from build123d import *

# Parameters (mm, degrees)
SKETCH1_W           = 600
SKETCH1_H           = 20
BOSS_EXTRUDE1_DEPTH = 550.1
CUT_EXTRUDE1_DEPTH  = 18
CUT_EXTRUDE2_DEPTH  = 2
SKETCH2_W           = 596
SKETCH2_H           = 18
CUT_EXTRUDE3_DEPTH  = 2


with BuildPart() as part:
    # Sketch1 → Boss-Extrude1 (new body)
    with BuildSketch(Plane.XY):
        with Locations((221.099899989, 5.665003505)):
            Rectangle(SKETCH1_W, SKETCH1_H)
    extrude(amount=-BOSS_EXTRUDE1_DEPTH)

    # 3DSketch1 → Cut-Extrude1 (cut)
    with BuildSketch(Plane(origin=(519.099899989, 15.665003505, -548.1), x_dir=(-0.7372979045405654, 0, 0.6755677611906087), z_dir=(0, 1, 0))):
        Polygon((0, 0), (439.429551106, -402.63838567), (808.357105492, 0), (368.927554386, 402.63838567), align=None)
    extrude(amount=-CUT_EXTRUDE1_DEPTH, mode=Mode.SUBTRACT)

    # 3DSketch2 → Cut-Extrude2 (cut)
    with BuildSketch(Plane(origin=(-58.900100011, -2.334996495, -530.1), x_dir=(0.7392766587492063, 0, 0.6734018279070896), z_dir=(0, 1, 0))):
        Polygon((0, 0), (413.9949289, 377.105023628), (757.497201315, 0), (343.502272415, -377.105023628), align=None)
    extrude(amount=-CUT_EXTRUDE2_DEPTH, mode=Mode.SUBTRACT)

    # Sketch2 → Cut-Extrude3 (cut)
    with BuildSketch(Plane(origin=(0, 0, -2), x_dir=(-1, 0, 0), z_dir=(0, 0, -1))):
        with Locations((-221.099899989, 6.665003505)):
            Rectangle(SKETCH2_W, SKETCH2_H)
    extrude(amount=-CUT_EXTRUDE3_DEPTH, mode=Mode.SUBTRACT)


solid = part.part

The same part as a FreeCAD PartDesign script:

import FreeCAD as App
import Part
import Sketcher
from FreeCAD import Vector


def add_polygon(sketch, points):
    """Adds a closed chain of lines whose ends are joined by coincident constraints."""
    first, n = sketch.GeometryCount, len(points)
    for a, b in zip(points, points[1:] + points[:1]):
        sketch.addGeometry(Part.LineSegment(App.Vector(*a, 0), App.Vector(*b, 0)), False)
    for i in range(n):
        sketch.addConstraint(Sketcher.Constraint("Coincident", first + i, 2, first + (i + 1) % n, 1))

doc = App.newDocument("Part")
body = doc.addObject("PartDesign::Body", "Body")

# Sketch on XY plane
sketch1 = doc.addObject("Sketcher::SketchObject", "Sketch")
body.addObject(sketch1)
sketch1.AttachmentSupport = (doc.XY_Plane, [""])
sketch1.MapMode = "FlatFace"
add_polygon(sketch1, [(-79, 16), (-79, -4), (521, -4), (521, 16)])  # lines 0-3
sketch1.addConstraint([
    Sketcher.Constraint("Vertical", 0),
    Sketcher.Constraint("Horizontal", 1),
    Sketcher.Constraint("Vertical", 2),
    Sketcher.Constraint("Horizontal", 3),
    Sketcher.Constraint("DistanceX", 1, 1, 1, 2, 600.0),
    Sketcher.Constraint("DistanceY", 0, 2, 0, 1, 20.0),
    Sketcher.Constraint("DistanceX", 0, 2, -1, 1, 78.9001),
    Sketcher.Constraint("DistanceY", 0, 2, -1, 1, 4.334996),
])
pad1 = doc.addObject("PartDesign::Pad", "Pad")
body.addObject(pad1)
pad1.Profile = sketch1
pad1.Length = 550.1
pad1.Reversed = True

# Sketch on XZ plane
sketch2 = doc.addObject("Sketcher::SketchObject", "Sketch001")
body.addObject(sketch2)
sketch2.AttachmentSupport = (doc.XZ_Plane, [""])
sketch2.MapMode = "FlatFace"
sketch2.AttachmentOffset = App.Placement(Vector(0, 0, -15.665004), App.Rotation())
add_polygon(sketch2, [(519, -548), (-77, -548), (-77, -2), (519, -2)])  # lines 0-3
sketch2.addConstraint([
    Sketcher.Constraint("Horizontal", 0),
    Sketcher.Constraint("Vertical", 1),
    Sketcher.Constraint("Horizontal", 2),
    Sketcher.Constraint("Vertical", 3),
    Sketcher.Constraint("DistanceX", 0, 2, 0, 1, 596.0),
    Sketcher.Constraint("DistanceY", 1, 1, 1, 2, 546.1),
    Sketcher.Constraint("DistanceY", 1, 2, -1, 1, 2.0),
    Sketcher.Constraint("DistanceX", 0, 2, -1, 1, 76.9001),
])
pocket1 = doc.addObject("PartDesign::Pocket", "Pocket")
body.addObject(pocket1)
pocket1.Profile = sketch2
pocket1.Length = 18
pocket1.Reversed = True

# Sketch on XZ plane
sketch3 = doc.addObject("Sketcher::SketchObject", "Sketch002")
body.addObject(sketch3)
sketch3.AttachmentSupport = (doc.XZ_Plane, [""])
sketch3.MapMode = "FlatFace"
sketch3.AttachmentOffset = App.Placement(Vector(0, 0, 2.334996), App.Rotation())
add_polygon(sketch3, [(501, -530), (-59, -530), (-59, -20), (501, -20)])  # lines 0-3
sketch3.addConstraint([
    Sketcher.Constraint("Horizontal", 0),
    Sketcher.Constraint("Vertical", 1),
    Sketcher.Constraint("Horizontal", 2),
    Sketcher.Constraint("Vertical", 3),
    Sketcher.Constraint("DistanceX", 0, 2, 0, 1, 560.0),
    Sketcher.Constraint("DistanceY", 1, 1, 1, 2, 510.1),
    Sketcher.Constraint("DistanceY", 1, 2, -1, 1, 20.0),
    Sketcher.Constraint("DistanceX", 0, 2, -1, 1, 58.9001),
])
pocket2 = doc.addObject("PartDesign::Pocket", "Pocket001")
body.addObject(pocket2)
pocket2.Profile = sketch3
pocket2.Length = 2
pocket2.Reversed = True

# Sketch on XY plane
sketch4 = doc.addObject("Sketcher::SketchObject", "Sketch003")
body.addObject(sketch4)
sketch4.AttachmentSupport = (doc.XY_Plane, [""])
sketch4.MapMode = "FlatFace"
sketch4.AttachmentOffset = App.Placement(Vector(0, 0, -2), App.Rotation())
add_polygon(sketch4, [(519, 16), (519, -2), (-77, -2), (-77, 16)])  # lines 0-3
sketch4.addConstraint([
    Sketcher.Constraint("Vertical", 0),
    Sketcher.Constraint("Horizontal", 1),
    Sketcher.Constraint("Vertical", 2),
    Sketcher.Constraint("Horizontal", 3),
    Sketcher.Constraint("DistanceX", 1, 2, 1, 1, 596.0),
    Sketcher.Constraint("DistanceY", 0, 2, 0, 1, 18.0),
    Sketcher.Constraint("DistanceX", -1, 1, 0, 2, 519.0999),
    Sketcher.Constraint("DistanceY", 0, 2, -1, 1, 2.334996),
])
pocket3 = doc.addObject("PartDesign::Pocket", "Pocket002")
body.addObject(pocket3)
pocket3.Profile = sketch4
pocket3.Length = 2
pocket3.Reversed = True

doc.recompute()
